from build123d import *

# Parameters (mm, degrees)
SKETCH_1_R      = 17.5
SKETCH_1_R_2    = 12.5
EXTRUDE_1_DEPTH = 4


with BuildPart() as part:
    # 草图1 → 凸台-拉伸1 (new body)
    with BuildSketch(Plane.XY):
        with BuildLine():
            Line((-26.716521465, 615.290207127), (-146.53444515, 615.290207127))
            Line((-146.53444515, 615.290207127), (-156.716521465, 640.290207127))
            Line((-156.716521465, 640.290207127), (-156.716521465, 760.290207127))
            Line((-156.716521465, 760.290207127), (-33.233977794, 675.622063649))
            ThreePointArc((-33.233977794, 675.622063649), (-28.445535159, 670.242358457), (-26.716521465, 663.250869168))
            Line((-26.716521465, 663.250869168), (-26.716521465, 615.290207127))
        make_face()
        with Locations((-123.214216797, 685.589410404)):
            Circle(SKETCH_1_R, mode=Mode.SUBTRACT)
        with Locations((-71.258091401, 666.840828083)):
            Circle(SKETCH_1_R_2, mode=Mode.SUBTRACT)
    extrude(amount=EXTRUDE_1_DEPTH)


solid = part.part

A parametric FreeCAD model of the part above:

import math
import FreeCAD as App
import Part
import Sketcher

V = App.Vector
Q = App.Units.Quantity

doc = App.newDocument("Part")
body = doc.addObject("PartDesign::Body", "Body")

# Sketch on XY plane
sketch1 = body.newObject("Sketcher::SketchObject", "Sketch")
sketch1.AttachmentSupport = (doc.getObject("XY_Plane"), [""])
sketch1.MapMode = "FlatFace"
sketch1.addGeometry(Part.LineSegment(V(-147, 615, 0), V(-27, 615, 0)), False)
sketch1.addGeometry(Part.LineSegment(V(-27, 615, 0), V(-27, 663, 0)), False)
sketch1.addGeometry(Part.ArcOfCircle(Part.Circle(V(-42, 663, 0), V(0, 0, 1), 15), math.radians(0), math.radians(56)), False)
sketch1.addGeometry(Part.LineSegment(V(-33, 676, 0), V(-157, 760, 0)), False)
sketch1.addGeometry(Part.LineSegment(V(-157, 760, 0), V(-157, 640, 0)), False)
sketch1.addGeometry(Part.LineSegment(V(-157, 640, 0), V(-147, 615, 0)), False)
sketch1.addGeometry(Part.Circle(V(-71, 667, 0), V(0, 0, 1), 12), False)
sketch1.addGeometry(Part.Circle(V(-123, 686, 0), V(0, 0, 1), 18), False)
sketch1.addConstraint(Sketcher.Constraint("Coincident", 0, 2, 1, 1))
sketch1.addConstraint(Sketcher.Constraint("Tangent", 1, 2, 2, 1))
sketch1.addConstraint(Sketcher.Constraint("Tangent", 2, 2, 3, 1))
sketch1.addConstraint(Sketcher.Constraint("Coincident", 3, 2, 4, 1))
sketch1.addConstraint(Sketcher.Constraint("Coincident", 4, 2, 5, 1))
sketch1.addConstraint(Sketcher.Constraint("Coincident", 5, 2, 0, 1))
sketch1.addConstraint(Sketcher.Constraint("Horizontal", 0))
sketch1.addConstraint(Sketcher.Constraint("Vertical", 1))
sketch1.addConstraint(Sketcher.Constraint("Vertical", 4))
sketch1.addConstraint(Sketcher.Constraint("Diameter", 6, Q("25 mm")))
sketch1.addConstraint(Sketcher.Constraint("Diameter", 7, Q("35 mm")))
sketch1.addConstraint(Sketcher.Constraint("Radius", 2, Q("15 mm")))
sketch1.addConstraint(Sketcher.Constraint("DistanceY", 4, 2, 4, 1, Q("120 mm")))
sketch1.addConstraint(Sketcher.Constraint("DistanceX", 3, 2, 2, 3, Q("115 mm")))
sketch1.addConstraint(Sketcher.Constraint("DistanceY", 5, 2, 4, 2, Q("25 mm")))
sketch1.addConstraint(Sketcher.Constraint("DistanceX", 0, 1, 0, 2, Q("119.817924 mm")))
sketch1.addConstraint(Sketcher.Constraint("DistanceY", 1, 1, 1, 2, Q("47.960662 mm")))
sketch1.addConstraint(Sketcher.Constraint("DistanceX", 2, 3, -1, 1, Q("41.716521 mm")))
sketch1.addConstraint(Sketcher.Constraint("DistanceY", -1, 1, 2, 3, Q("663.250869 mm")))
sketch1.addConstraint(Sketcher.Constraint("DistanceX", 6, 3, -1, 1, Q("71.258091 mm")))
sketch1.addConstraint(Sketcher.Constraint("DistanceY", -1, 1, 6, 3, Q("666.840828 mm")))
sketch1.addConstraint(Sketcher.Constraint("DistanceY", -1, 1, 7, 3, Q("685.58941 mm")))
sketch1.addConstraint(Sketcher.Constraint("DistanceX", 7, 3, 2, 2, Q("89.980239 mm")))
pad1 = body.newObject("PartDesign::Pad", "Pad")
pad1.Profile = sketch1
pad1.Length = 4

doc.recompute()
